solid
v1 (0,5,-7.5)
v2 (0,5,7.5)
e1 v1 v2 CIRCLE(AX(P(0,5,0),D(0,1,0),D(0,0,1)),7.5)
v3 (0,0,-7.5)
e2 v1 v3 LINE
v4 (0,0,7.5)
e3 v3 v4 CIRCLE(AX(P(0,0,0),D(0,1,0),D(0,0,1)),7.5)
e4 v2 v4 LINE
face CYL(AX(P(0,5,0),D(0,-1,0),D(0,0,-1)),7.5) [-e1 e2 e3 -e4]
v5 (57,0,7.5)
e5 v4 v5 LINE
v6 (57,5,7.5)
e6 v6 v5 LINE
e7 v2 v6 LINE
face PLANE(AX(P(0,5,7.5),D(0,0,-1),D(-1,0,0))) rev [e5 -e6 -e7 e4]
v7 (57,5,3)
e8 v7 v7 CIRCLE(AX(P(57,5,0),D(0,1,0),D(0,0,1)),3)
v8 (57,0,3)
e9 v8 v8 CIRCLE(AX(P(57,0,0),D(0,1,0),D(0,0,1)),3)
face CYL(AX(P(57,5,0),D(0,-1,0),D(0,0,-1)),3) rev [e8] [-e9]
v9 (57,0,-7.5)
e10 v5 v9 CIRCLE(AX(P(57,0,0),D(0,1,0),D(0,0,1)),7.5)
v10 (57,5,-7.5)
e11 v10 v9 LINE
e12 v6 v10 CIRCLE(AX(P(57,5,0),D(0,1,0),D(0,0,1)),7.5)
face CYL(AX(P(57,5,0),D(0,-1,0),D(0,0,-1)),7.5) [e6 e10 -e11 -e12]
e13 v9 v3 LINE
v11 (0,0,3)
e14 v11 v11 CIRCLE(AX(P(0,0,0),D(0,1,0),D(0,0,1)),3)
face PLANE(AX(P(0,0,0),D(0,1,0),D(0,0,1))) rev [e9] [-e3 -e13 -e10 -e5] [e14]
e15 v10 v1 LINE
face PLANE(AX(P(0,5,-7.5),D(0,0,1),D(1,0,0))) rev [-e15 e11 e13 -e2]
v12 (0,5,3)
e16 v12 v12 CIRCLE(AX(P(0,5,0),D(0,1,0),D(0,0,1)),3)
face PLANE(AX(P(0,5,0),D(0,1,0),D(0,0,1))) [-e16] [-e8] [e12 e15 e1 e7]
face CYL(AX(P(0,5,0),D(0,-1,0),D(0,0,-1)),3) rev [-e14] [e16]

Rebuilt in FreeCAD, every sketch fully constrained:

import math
import FreeCAD as App
import Part
import Sketcher
from FreeCAD import Vector
Q = App.Units.Quantity

doc = App.newDocument("Part")
params = doc.addObject("Spreadsheet::Sheet", "Params")
for row, (alias, value) in enumerate([
    ("sketch1_diameter", "6 mm"),
    ("sketch1_radius", "7.5 mm"),
    ("sketch1_width", "57 mm"),
    ("pad1_length", "5 mm"),
], start=1):
    params.set(f"A{row}", alias)
    params.set(f"B{row}", "=" + value)
    params.setAlias(f"B{row}", alias)

body = doc.addObject("PartDesign::Body", "Body")

sketch1 = body.newObject("Sketcher::SketchObject", "Sketch")
sketch1.AttachmentSupport = (doc.getObject("XZ_Plane"), [""])
sketch1.MapMode = "FlatFace"
sketch1.addGeometry(Part.LineSegment(Vector(57, -7.5, 0), Vector(0, -7.5, 0)), False)
sketch1.addGeometry(Part.ArcOfCircle(Part.Circle(Vector(0, 0, 0), Vector(0, 0, 1), 7.5), math.radians(90), math.radians(270)), False)
sketch1.addGeometry(Part.LineSegment(Vector(0, 7.5, 0), Vector(57, 7.5, 0)), False)
sketch1.addGeometry(Part.ArcOfCircle(Part.Circle(Vector(57, 0, 0), Vector(0, 0, 1), 7.5), math.radians(-90), math.radians(90)), False)
sketch1.addGeometry(Part.Circle(Vector(57, 0, 0), Vector(0, 0, 1), 3), False)
sketch1.addGeometry(Part.Circle(Vector(0, 0, 0), Vector(0, 0, 1), 3), False)
sketch1.addConstraint(Sketcher.Constraint("Tangent", 0, 2, 1, 2))
sketch1.addConstraint(Sketcher.Constraint("Tangent", 1, 1, 2, 1))
sketch1.addConstraint(Sketcher.Constraint("Tangent", 2, 2, 3, 2))
sketch1.addConstraint(Sketcher.Constraint("Tangent", 3, 1, 0, 1))
sketch1.addConstraint(Sketcher.Constraint("Horizontal", 0))
sketch1.addConstraint(Sketcher.Constraint("Horizontal", 2))
sketch1.addConstraint(Sketcher.Constraint("Coincident", 1, 3, -1, 1))
sketch1.addConstraint(Sketcher.Constraint("Coincident", 5, 3, -1, 1))
sketch1.addConstraint(Sketcher.Constraint("Coincident", 4, 3, 3, 3))
sketch1.addConstraint(Sketcher.Constraint("Equal", 4, 5))
sketch1.addConstraint(Sketcher.Constraint("Diameter", 4, Q("6 mm")))
sketch1.addConstraint(Sketcher.Constraint("Radius", 1, Q("7.5 mm")))
sketch1.addConstraint(Sketcher.Constraint("DistanceX", 0, 2, 0, 1, Q("57 mm")))
sketch1.setExpression("Constraints[10]", "Params.sketch1_diameter")
sketch1.setExpression("Constraints[11]", "Params.sketch1_radius")
sketch1.setExpression("Constraints[12]", "Params.sketch1_width")
pad1 = body.newObject("PartDesign::Pad", "Pad")
pad1.Profile = sketch1
pad1.setExpression("Length", "Params.pad1_length")
pad1.Reversed = True

doc.recompute()
